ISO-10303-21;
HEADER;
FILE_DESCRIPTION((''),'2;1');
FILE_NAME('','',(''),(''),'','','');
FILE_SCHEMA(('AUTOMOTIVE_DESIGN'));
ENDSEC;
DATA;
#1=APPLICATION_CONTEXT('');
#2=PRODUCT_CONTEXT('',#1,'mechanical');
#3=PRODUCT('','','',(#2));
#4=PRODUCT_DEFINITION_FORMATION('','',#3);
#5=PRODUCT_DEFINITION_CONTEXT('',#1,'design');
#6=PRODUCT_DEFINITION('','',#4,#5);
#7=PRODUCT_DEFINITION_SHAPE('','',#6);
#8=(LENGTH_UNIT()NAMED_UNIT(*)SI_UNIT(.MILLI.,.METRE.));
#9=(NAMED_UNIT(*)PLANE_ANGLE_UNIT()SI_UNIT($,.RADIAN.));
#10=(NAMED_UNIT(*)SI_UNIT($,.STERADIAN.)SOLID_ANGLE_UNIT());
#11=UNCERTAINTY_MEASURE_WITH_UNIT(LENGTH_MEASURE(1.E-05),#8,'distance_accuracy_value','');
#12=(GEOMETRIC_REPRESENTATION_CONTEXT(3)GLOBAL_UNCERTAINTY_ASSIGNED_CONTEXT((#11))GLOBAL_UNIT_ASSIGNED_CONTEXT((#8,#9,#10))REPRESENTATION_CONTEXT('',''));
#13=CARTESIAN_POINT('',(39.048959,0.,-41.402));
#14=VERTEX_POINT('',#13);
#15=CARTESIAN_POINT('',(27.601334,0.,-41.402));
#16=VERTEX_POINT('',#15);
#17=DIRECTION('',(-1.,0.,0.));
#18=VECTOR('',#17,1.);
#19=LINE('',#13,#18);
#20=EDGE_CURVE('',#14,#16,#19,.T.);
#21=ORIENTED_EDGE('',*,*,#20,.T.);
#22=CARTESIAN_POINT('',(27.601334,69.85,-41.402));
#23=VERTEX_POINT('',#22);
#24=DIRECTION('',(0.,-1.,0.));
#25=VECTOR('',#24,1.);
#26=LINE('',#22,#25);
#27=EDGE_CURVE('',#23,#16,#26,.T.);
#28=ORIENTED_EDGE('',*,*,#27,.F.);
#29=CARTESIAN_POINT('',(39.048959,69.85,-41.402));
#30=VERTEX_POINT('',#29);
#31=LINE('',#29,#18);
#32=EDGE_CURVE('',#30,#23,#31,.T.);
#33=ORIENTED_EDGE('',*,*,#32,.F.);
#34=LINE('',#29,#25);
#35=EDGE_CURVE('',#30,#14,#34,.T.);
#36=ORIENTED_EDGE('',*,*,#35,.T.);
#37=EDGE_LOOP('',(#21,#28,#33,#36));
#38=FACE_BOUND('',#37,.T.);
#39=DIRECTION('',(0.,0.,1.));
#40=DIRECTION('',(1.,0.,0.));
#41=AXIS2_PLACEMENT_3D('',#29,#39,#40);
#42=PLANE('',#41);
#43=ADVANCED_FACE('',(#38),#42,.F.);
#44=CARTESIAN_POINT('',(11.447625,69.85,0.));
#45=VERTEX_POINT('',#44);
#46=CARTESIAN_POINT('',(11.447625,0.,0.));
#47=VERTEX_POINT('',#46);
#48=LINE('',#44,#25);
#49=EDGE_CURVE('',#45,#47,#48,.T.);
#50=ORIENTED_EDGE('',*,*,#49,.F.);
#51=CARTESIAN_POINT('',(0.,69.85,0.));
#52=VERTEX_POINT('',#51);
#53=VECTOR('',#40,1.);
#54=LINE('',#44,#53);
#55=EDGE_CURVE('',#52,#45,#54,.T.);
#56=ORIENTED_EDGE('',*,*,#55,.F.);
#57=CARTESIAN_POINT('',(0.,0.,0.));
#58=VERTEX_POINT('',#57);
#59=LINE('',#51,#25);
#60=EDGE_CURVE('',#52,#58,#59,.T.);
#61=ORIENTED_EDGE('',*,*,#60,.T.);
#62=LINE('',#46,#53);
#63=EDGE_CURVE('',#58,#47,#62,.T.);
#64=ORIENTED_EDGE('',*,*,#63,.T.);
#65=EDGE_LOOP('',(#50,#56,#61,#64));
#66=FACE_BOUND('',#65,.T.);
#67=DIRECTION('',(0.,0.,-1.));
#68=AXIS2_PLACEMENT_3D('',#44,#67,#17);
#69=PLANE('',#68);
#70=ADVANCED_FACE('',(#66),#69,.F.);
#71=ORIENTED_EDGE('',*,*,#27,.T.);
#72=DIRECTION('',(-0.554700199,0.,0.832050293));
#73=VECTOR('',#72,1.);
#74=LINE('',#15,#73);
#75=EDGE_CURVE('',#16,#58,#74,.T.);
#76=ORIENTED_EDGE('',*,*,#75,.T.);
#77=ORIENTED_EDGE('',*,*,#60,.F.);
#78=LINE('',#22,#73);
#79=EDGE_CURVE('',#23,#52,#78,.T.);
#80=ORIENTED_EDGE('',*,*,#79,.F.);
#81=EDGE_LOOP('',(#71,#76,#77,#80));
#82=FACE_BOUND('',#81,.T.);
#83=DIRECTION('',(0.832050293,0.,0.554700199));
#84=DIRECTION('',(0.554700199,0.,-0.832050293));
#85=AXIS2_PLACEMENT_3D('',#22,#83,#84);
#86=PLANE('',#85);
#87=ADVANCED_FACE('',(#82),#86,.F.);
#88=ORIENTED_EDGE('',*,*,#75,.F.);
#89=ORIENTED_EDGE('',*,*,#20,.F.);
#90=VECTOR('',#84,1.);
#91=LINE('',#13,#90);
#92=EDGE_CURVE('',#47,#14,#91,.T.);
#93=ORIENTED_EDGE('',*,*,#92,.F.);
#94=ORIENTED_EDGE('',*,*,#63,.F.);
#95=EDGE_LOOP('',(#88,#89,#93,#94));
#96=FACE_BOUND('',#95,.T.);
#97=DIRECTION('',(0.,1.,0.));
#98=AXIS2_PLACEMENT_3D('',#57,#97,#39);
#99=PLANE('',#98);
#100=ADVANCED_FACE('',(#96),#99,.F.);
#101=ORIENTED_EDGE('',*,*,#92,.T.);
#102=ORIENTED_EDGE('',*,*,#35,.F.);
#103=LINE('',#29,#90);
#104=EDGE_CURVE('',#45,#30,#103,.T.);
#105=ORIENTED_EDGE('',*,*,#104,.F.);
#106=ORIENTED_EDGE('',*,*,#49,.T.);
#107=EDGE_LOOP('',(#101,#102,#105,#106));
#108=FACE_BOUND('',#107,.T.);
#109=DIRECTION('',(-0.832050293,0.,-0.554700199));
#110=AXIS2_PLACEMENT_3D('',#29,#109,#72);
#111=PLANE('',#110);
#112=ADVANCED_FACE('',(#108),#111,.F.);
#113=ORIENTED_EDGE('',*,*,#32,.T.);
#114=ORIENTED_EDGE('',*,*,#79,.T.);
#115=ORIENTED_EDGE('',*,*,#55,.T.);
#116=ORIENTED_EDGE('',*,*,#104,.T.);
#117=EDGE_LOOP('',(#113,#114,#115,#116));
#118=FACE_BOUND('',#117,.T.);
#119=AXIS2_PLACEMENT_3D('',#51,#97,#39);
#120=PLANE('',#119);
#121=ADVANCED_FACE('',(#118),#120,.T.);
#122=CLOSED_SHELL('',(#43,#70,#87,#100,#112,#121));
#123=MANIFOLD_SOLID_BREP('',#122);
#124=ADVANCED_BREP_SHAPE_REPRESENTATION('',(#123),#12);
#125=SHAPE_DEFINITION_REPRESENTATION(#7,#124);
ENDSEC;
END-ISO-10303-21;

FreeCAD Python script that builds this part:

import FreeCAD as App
import Part
import Sketcher

V = App.Vector
Q = App.Units.Quantity


def add_polygon(sketch, points):
    """Adds a closed chain of lines whose ends are joined by coincident constraints."""
    first, n = sketch.GeometryCount, len(points)
    for a, b in zip(points, points[1:] + points[:1]):
        sketch.addGeometry(Part.LineSegment(App.Vector(*a, 0), App.Vector(*b, 0)), False)
    for i in range(n):
        sketch.addConstraint(Sketcher.Constraint("Coincident", first + i, 2, first + (i + 1) % n, 1))

doc = App.newDocument("Part")
body = doc.addObject("PartDesign::Body", "Body")

sketch1 = body.newObject("Sketcher::SketchObject", "Sketch")
sketch1.AttachmentSupport = (doc.getObject("XZ_Plane"), [""])
sketch1.MapMode = "FlatFace"
add_polygon(sketch1, [(11, 0), (39, -41), (28, -41), (0, 0)])
sketch1.addConstraint(Sketcher.Constraint("Horizontal", 1))
sketch1.addConstraint(Sketcher.Constraint("Horizontal", 3))
sketch1.addConstraint(Sketcher.Constraint("Coincident", 2, 2, -1, 1))
sketch1.addConstraint(Sketcher.Constraint("Parallel", 0, 2))
sketch1.addConstraint(Sketcher.Constraint("DistanceY", 0, 2, -1, 1, Q("1.63 in")))
sketch1.addConstraint(Sketcher.Constraint("Distance", 0, Q("49.759011 mm")))
sketch1.addConstraint(Sketcher.Constraint("DistanceX", 1, 2, 1, 1, Q("11.447625 mm")))
pad1 = body.newObject("PartDesign::Pad", "Pad")
pad1.Profile = sketch1
pad1.Length = Q("2.75 in")
pad1.Reversed = True

doc.recompute()
